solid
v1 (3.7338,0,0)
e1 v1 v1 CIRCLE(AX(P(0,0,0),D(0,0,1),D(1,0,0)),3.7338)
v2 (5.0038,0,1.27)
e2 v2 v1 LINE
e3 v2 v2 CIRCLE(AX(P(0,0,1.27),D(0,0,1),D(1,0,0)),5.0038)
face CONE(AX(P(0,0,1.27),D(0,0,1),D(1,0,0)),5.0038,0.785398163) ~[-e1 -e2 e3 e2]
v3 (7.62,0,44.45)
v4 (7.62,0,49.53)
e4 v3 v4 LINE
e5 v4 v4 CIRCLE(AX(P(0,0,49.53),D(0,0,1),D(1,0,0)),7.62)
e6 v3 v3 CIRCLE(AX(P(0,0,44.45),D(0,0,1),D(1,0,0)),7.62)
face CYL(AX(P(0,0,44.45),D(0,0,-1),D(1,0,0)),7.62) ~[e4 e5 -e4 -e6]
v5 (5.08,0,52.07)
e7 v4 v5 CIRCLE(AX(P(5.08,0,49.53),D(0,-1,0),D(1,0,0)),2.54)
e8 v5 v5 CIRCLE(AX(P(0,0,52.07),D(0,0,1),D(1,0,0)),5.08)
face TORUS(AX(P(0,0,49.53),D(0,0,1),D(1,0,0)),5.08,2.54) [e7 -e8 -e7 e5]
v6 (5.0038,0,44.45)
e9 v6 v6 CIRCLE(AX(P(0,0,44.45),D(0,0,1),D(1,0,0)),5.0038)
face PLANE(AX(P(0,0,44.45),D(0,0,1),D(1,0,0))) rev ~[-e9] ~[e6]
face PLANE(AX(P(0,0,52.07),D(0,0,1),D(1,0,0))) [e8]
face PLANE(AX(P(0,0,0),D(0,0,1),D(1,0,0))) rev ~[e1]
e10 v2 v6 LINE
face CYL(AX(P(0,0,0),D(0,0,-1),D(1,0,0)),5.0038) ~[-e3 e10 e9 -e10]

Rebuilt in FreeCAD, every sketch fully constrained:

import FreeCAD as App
import Part
import Sketcher
from FreeCAD import Vector
Q = App.Units.Quantity


def edges_at(feature, points):
    """Names of the edges that pass closest to the given points."""
    edges = feature.Shape.Edges
    near = lambda p: min(range(len(edges)), key=lambda i: edges[i].distToShape(Part.Vertex(*p))[0])
    return sorted({f"Edge{near(p) + 1}" for p in points})

doc = App.newDocument("Part")
body = doc.addObject("PartDesign::Body", "Body")

# Sketch on XY plane
sketch1 = body.newObject("Sketcher::SketchObject", "Sketch")
sketch1.AttachmentSupport = (doc.getObject("XY_Plane"), [""])
sketch1.MapMode = "FlatFace"
sketch1.addGeometry(Part.Circle(Vector(0, 0, 0), Vector(0, 0, 1), 5), False)
sketch1.addConstraint(Sketcher.Constraint("Coincident", 0, 3, -1, 1))
sketch1.addConstraint(Sketcher.Constraint("Diameter", 0, Q("0.394 in")))
pad1 = body.newObject("PartDesign::Pad", "Pad")
pad1.Profile = sketch1
pad1.Length = Q("1.75 in")

# Sketch on XY plane
sketch2 = body.newObject("Sketcher::SketchObject", "Sketch001")
sketch2.AttachmentSupport = (doc.getObject("XY_Plane"), [""])
sketch2.MapMode = "FlatFace"
sketch2.AttachmentOffset = App.Placement(Vector(0, 0, 1.75 * 25.4), App.Rotation())
sketch2.addGeometry(Part.Circle(Vector(0, 0, 0), Vector(0, 0, 1), 8), False)
sketch2.addConstraint(Sketcher.Constraint("Coincident", 0, 3, -1, 1))
sketch2.addConstraint(Sketcher.Constraint("Diameter", 0, Q("0.6 in")))
pad2 = body.newObject("PartDesign::Pad", "Pad001")
pad2.Profile = sketch2
pad2.Length = Q("0.3 in")
doc.recompute()

fillet = body.newObject("PartDesign::Fillet", "Fillet")
fillet.Base = (pad2, edges_at(pad2, [(-7.62, 0, 52.07)]))
fillet.Radius = Q("0.1 in")
doc.recompute()

chamfer = body.newObject("PartDesign::Chamfer", "Chamfer")
chamfer.Base = (fillet, edges_at(fillet, [(-5.004, 0, 0)]))
chamfer.Size = Q("0.05 in")

doc.recompute()
